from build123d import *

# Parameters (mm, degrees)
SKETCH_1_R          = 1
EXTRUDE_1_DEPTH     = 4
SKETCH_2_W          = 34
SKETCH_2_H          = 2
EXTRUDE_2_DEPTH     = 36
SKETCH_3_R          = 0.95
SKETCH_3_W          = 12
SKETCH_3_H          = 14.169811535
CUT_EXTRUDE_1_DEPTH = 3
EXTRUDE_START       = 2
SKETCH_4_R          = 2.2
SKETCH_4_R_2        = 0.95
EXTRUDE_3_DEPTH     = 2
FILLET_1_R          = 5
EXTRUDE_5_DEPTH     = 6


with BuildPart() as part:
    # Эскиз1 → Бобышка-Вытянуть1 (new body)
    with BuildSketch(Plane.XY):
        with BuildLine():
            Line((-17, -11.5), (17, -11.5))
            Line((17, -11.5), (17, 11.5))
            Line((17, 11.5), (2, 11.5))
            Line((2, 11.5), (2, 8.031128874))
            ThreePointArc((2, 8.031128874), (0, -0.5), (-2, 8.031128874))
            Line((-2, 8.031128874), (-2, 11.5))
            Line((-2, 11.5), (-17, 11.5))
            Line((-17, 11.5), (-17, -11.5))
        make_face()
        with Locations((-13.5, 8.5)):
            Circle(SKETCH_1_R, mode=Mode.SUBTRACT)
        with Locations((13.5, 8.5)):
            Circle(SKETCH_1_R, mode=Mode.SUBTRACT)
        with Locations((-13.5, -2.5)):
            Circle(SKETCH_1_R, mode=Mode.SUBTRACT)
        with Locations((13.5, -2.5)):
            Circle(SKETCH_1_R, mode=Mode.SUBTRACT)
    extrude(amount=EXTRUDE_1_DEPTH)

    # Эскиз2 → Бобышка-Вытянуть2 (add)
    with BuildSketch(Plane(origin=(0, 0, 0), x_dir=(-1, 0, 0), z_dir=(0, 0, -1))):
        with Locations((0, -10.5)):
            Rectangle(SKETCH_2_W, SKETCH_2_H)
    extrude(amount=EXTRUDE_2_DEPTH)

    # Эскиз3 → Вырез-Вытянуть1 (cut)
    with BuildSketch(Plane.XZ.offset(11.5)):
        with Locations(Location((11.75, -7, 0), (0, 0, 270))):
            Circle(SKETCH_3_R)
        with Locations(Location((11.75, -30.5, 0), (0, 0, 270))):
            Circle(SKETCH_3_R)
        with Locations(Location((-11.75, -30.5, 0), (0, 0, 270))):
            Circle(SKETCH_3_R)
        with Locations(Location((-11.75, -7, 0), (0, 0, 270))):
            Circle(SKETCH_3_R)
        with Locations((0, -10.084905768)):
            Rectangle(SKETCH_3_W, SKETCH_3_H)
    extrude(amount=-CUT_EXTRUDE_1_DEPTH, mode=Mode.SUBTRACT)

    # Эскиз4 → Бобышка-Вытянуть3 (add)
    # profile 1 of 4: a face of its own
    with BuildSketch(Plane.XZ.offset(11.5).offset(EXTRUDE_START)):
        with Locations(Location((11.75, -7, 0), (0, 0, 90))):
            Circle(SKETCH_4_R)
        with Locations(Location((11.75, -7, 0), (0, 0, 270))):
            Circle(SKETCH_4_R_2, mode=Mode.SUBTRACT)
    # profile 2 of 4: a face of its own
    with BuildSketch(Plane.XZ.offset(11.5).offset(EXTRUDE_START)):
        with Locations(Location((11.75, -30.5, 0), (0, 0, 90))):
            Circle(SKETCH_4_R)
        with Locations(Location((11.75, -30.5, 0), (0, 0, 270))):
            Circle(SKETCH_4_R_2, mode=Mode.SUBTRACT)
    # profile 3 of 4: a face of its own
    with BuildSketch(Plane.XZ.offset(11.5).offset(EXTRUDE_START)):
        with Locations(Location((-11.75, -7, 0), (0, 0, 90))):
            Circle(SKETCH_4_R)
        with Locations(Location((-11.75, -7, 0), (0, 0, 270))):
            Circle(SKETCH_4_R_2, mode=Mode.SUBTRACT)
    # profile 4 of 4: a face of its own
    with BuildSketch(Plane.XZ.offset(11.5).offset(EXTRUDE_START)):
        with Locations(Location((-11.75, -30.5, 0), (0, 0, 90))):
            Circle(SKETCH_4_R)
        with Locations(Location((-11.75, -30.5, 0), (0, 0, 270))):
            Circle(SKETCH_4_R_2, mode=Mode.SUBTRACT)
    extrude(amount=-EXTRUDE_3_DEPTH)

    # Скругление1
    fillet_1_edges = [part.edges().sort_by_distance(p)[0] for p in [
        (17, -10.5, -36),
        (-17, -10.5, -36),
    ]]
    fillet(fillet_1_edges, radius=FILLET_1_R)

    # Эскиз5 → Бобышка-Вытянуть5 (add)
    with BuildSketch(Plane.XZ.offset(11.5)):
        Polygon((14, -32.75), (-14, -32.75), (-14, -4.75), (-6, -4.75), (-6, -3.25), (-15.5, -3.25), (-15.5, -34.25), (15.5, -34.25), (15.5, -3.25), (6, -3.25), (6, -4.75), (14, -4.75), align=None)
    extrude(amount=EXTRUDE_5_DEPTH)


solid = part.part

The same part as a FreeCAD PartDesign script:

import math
import FreeCAD as App
import Part
import Sketcher
from FreeCAD import Vector
Q = App.Units.Quantity


def edges_at(feature, points):
    """Names of the edges that pass closest to the given points."""
    edges = feature.Shape.Edges
    near = lambda p: min(range(len(edges)), key=lambda i: edges[i].distToShape(Part.Vertex(*p))[0])
    return sorted({f"Edge{near(p) + 1}" for p in points})


def add_polygon(sketch, points):
    """Adds a closed chain of lines whose ends are joined by coincident constraints."""
    first, n = sketch.GeometryCount, len(points)
    for a, b in zip(points, points[1:] + points[:1]):
        sketch.addGeometry(Part.LineSegment(App.Vector(*a, 0), App.Vector(*b, 0)), False)
    for i in range(n):
        sketch.addConstraint(Sketcher.Constraint("Coincident", first + i, 2, first + (i + 1) % n, 1))

doc = App.newDocument("Part")
body = doc.addObject("PartDesign::Body", "Body")

sketch1 = doc.addObject("Sketcher::SketchObject", "Sketch")
body.addObject(sketch1)
sketch1.AttachmentSupport = (doc.XY_Plane, [""])
sketch1.MapMode = "FlatFace"
sketch1.addGeometry([
    Part.LineSegment(Vector(-17, -11.5, 0), Vector(17, -11.5, 0)),
    Part.LineSegment(Vector(17, -11.5, 0), Vector(17, 11.5, 0)),
    Part.LineSegment(Vector(17, 11.5, 0), Vector(2, 11.5, 0)),
    Part.LineSegment(Vector(2, 11.5, 0), Vector(2, 8.031129, 0)),
    Part.ArcOfCircle(Part.Circle(Vector(0, 4, 0), Vector(0, 0, 1), 4.5), math.radians(116.3878), math.radians(423.6122)),
    Part.LineSegment(Vector(-2, 8.031129, 0), Vector(-2, 11.5, 0)),
    Part.LineSegment(Vector(-2, 11.5, 0), Vector(-17, 11.5, 0)),
    Part.LineSegment(Vector(-17, 11.5, 0), Vector(-17, -11.5, 0)),
    Part.Circle(Vector(-13.5, -2.5, 0), Vector(0, 0, 1), 1),
    Part.Circle(Vector(13.5, -2.5, 0), Vector(0, 0, 1), 1),
    Part.Circle(Vector(-13.5, 8.5, 0), Vector(0, 0, 1), 1),
    Part.Circle(Vector(13.5, 8.5, 0), Vector(0, 0, 1), 1),
], False)
sketch1.addConstraint([
    Sketcher.Constraint("Coincident", 0, 2, 1, 1),
    Sketcher.Constraint("Coincident", 1, 2, 2, 1),
    Sketcher.Constraint("Coincident", 2, 2, 3, 1),
    Sketcher.Constraint("Coincident", 3, 2, 4, 2),
    Sketcher.Constraint("Coincident", 4, 1, 5, 1),
    Sketcher.Constraint("Coincident", 5, 2, 6, 1),
    Sketcher.Constraint("Coincident", 6, 2, 7, 1),
    Sketcher.Constraint("Coincident", 7, 2, 0, 1),
    Sketcher.Constraint("Horizontal", 0),
    Sketcher.Constraint("Vertical", 1),
    Sketcher.Constraint("Horizontal", 2),
    Sketcher.Constraint("Vertical", 3),
    Sketcher.Constraint("Vertical", 5),
    Sketcher.Constraint("Horizontal", 6),
    Sketcher.Constraint("Vertical", 7),
    Sketcher.Constraint("Equal", 8, 9),
    Sketcher.Constraint("Equal", 9, 10),
    Sketcher.Constraint("Equal", 10, 11),
    Sketcher.Constraint("Symmetric", 0, 2, 6, 2, -1, 1),
    Sketcher.Constraint("Symmetric", 8, 3, 9, 3, -2),
    Sketcher.Constraint("Symmetric", 10, 3, 11, 3, -2),
    Sketcher.Constraint("Symmetric", 3, 2, 4, 1, -2),
    Sketcher.Constraint("Horizontal", 2, 2, 5, 2),
    Sketcher.Constraint("Vertical", 8, 3, 10, 3),
    Sketcher.Constraint("Diameter", 8, Q("2 mm")),
    Sketcher.Constraint("Radius", 4, Q("4.5 mm")),
    Sketcher.Constraint("DistanceX", 0, 1, 0, 2, Q("34 mm")),
    Sketcher.Constraint("DistanceX", 2, 2, 2, 1, Q("15 mm")),
    Sketcher.Constraint("DistanceY", 1, 1, 1, 2, Q("23 mm")),
    Sketcher.Constraint("DistanceY", -1, 1, 4, 3, Q("4 mm")),
    Sketcher.Constraint("DistanceX", 8, 3, 9, 3, Q("27 mm")),
    Sketcher.Constraint("DistanceY", 8, 3, 10, 3, Q("11 mm")),
    Sketcher.Constraint("DistanceY", 0, 2, 9, 3, Q("9 mm")),
])
pad1 = doc.addObject("PartDesign::Pad", "Pad")
body.addObject(pad1)
pad1.Profile = sketch1
pad1.Length = 4

sketch2 = doc.addObject("Sketcher::SketchObject", "Sketch001")
body.addObject(sketch2)
sketch2.AttachmentSupport = (doc.XY_Plane, [""])
sketch2.MapMode = "FlatFace"
add_polygon(sketch2, [(17, -9.5), (17, -11.5), (-17, -11.5), (-17, -9.5)])
sketch2.addConstraint([
    Sketcher.Constraint("Vertical", 0),
    Sketcher.Constraint("Horizontal", 1),
    Sketcher.Constraint("Vertical", 2),
    Sketcher.Constraint("Horizontal", 3),
    Sketcher.Constraint("DistanceX", 1, 2, 1, 1, Q("34 mm")),
    Sketcher.Constraint("DistanceY", 0, 2, 0, 1, Q("2 mm")),
    Sketcher.Constraint("DistanceX", -1, 1, 0, 2, Q("17 mm")),
    Sketcher.Constraint("DistanceY", 0, 2, -1, 1, Q("11.5 mm")),
])
pad2 = doc.addObject("PartDesign::Pad", "Pad001")
body.addObject(pad2)
pad2.Profile = sketch2
pad2.Length = 36
pad2.Reversed = True

sketch3 = doc.addObject("Sketcher::SketchObject", "Sketch002")
body.addObject(sketch3)
sketch3.AttachmentSupport = (doc.XZ_Plane, [""])
sketch3.MapMode = "FlatFace"
sketch3.AttachmentOffset = App.Placement(Vector(0, 0, 11.5), App.Rotation())
sketch3.addGeometry(Part.Circle(Vector(11.75, -7, 0), Vector(0, 0, 1), 0.95), False)
sketch3.addGeometry(Part.Circle(Vector(11.75, -30.5, 0), Vector(0, 0, 1), 0.95), False)
sketch3.addGeometry(Part.Circle(Vector(-11.75, -30.5, 0), Vector(0, 0, 1), 0.95), False)
sketch3.addGeometry(Part.Circle(Vector(-11.75, -7, 0), Vector(0, 0, 1), 0.95), False)
add_polygon(sketch3, [(-6, -3), (-6, -17.169812), (6, -17.169812), (6, -3)])
sketch3.addConstraint([
    Sketcher.Constraint("Vertical", 4),
    Sketcher.Constraint("Horizontal", 5),
    Sketcher.Constraint("Vertical", 6),
    Sketcher.Constraint("Horizontal", 7),
    Sketcher.Constraint("Equal", 0, 1),
    Sketcher.Constraint("Equal", 1, 2),
    Sketcher.Constraint("Equal", 2, 3),
    Sketcher.Constraint("Symmetric", 1, 3, 2, 3, -2),
    Sketcher.Constraint("Symmetric", 0, 3, 3, 3, -2),
    Sketcher.Constraint("Vertical", 0, 3, 1, 3),
    Sketcher.Constraint("Diameter", 0, Q("1.9 mm")),
    Sketcher.Constraint("DistanceX", 5, 1, 5, 2, Q("12 mm")),
    Sketcher.Constraint("DistanceY", 0, 3, -1, 1, Q("7 mm")),
    Sketcher.Constraint("DistanceX", 4, 2, -1, 1, Q("6 mm")),
    Sketcher.Constraint("DistanceY", 6, 2, -1, 1, Q("3 mm")),
    Sketcher.Constraint("DistanceY", 1, 3, -1, 1, Q("30.5 mm")),
    Sketcher.Constraint("DistanceX", 2, 3, 1, 3, Q("23.5 mm")),
    Sketcher.Constraint("DistanceY", 4, 2, 4, 1, Q("14.169812 mm")),
])
pocket1 = doc.addObject("PartDesign::Pocket", "Pocket")
body.addObject(pocket1)
pocket1.Profile = sketch3
pocket1.Length = 3

sketch4 = doc.addObject("Sketcher::SketchObject", "Sketch003")
body.addObject(sketch4)
sketch4.AttachmentSupport = (doc.XZ_Plane, [""])
sketch4.MapMode = "FlatFace"
sketch4.AttachmentOffset = App.Placement(Vector(0, 0, 13.5), App.Rotation())
sketch4.addGeometry([
    Part.Circle(Vector(11.75, -7, 0), Vector(0, 0, 1), 2.2),
    Part.Circle(Vector(11.75, -7, 0), Vector(0, 0, 1), 0.95),
    Part.Circle(Vector(11.75, -30.5, 0), Vector(0, 0, 1), 2.2),
    Part.Circle(Vector(11.75, -30.5, 0), Vector(0, 0, 1), 0.95),
    Part.Circle(Vector(-11.75, -7, 0), Vector(0, 0, 1), 2.2),
    Part.Circle(Vector(-11.75, -7, 0), Vector(0, 0, 1), 0.95),
    Part.Circle(Vector(-11.75, -30.5, 0), Vector(0, 0, 1), 2.2),
    Part.Circle(Vector(-11.75, -30.5, 0), Vector(0, 0, 1), 0.95),
], False)
sketch4.addConstraint([
    Sketcher.Constraint("Coincident", 1, 3, 0, 3),
    Sketcher.Constraint("Coincident", 3, 3, 2, 3),
    Sketcher.Constraint("Coincident", 5, 3, 4, 3),
    Sketcher.Constraint("Coincident", 7, 3, 6, 3),
    Sketcher.Constraint("Equal", 0, 2),
    Sketcher.Constraint("Equal", 1, 3),
    Sketcher.Constraint("Equal", 2, 4),
    Sketcher.Constraint("Equal", 3, 5),
    Sketcher.Constraint("Equal", 4, 6),
    Sketcher.Constraint("Equal", 5, 7),
    Sketcher.Constraint("Symmetric", 0, 3, 4, 3, -2),
    Sketcher.Constraint("Symmetric", 2, 3, 6, 3, -2),
    Sketcher.Constraint("Vertical", 1, 3, 2, 3),
    Sketcher.Constraint("Diameter", 0, Q("4.4 mm")),
    Sketcher.Constraint("Diameter", 1, Q("1.9 mm")),
    Sketcher.Constraint("DistanceY", 0, 3, -1, 1, Q("7 mm")),
    Sketcher.Constraint("DistanceY", 2, 3, -1, 1, Q("30.5 mm")),
    Sketcher.Constraint("DistanceX", 4, 3, 0, 3, Q("23.5 mm")),
])
pad3 = doc.addObject("PartDesign::Pad", "Pad002")
body.addObject(pad3)
pad3.Profile = sketch4
pad3.Length = 2
pad3.Reversed = True
doc.recompute()

fillet = doc.addObject("PartDesign::Fillet", "Fillet")
body.addObject(fillet)
fillet.Base = (pad3, edges_at(pad3, [(17, -10.5, -36), (-17, -10.5, -36)]))
fillet.Radius = 5

sketch5 = doc.addObject("Sketcher::SketchObject", "Sketch004")
body.addObject(sketch5)
sketch5.AttachmentSupport = (doc.XZ_Plane, [""])
sketch5.MapMode = "FlatFace"
sketch5.AttachmentOffset = App.Placement(Vector(0, 0, 11.5), App.Rotation())
add_polygon(sketch5, [(14, -32.75), (-14, -32.75), (-14, -4.75), (-6, -4.75), (-6, -3.25), (-15.5, -3.25), (-15.5, -34.25), (15.5, -34.25), (15.5, -3.25), (6, -3.25), (6, -4.75), (14, -4.75)])
sketch5.addConstraint([
    Sketcher.Constraint("Horizontal", 0),
    Sketcher.Constraint("Vertical", 1),
    Sketcher.Constraint("Horizontal", 2),
    Sketcher.Constraint("Vertical", 3),
    Sketcher.Constraint("Horizontal", 4),
    Sketcher.Constraint("Vertical", 5),
    Sketcher.Constraint("Horizontal", 6),
    Sketcher.Constraint("Vertical", 7),
    Sketcher.Constraint("Horizontal", 8),
    Sketcher.Constraint("Vertical", 9),
    Sketcher.Constraint("Horizontal", 10),
    Sketcher.Constraint("Vertical", 11),
    Sketcher.Constraint("Symmetric", 4, 2, 7, 2, -2),
    Sketcher.Constraint("Symmetric", 2, 2, 9, 2, -2),
    Sketcher.Constraint("Equal", 2, 10),
    Sketcher.Constraint("Equal", 0, 1),
    Sketcher.Constraint("Equal", 6, 5),
    Sketcher.Constraint("DistanceX", 0, 2, 0, 1, Q("28 mm")),
    Sketcher.Constraint("DistanceX", 2, 1, 2, 2, Q("8 mm")),
    Sketcher.Constraint("DistanceX", 6, 1, 6, 2, Q("31 mm")),
    Sketcher.Constraint("DistanceY", 3, 1, 3, 2, Q("1.5 mm")),
    Sketcher.Constraint("DistanceY", 0, 2, -1, 1, Q("32.75 mm")),
])
pad4 = doc.addObject("PartDesign::Pad", "Pad003")
body.addObject(pad4)
pad4.Profile = sketch5
pad4.Length = 6

doc.recompute()
